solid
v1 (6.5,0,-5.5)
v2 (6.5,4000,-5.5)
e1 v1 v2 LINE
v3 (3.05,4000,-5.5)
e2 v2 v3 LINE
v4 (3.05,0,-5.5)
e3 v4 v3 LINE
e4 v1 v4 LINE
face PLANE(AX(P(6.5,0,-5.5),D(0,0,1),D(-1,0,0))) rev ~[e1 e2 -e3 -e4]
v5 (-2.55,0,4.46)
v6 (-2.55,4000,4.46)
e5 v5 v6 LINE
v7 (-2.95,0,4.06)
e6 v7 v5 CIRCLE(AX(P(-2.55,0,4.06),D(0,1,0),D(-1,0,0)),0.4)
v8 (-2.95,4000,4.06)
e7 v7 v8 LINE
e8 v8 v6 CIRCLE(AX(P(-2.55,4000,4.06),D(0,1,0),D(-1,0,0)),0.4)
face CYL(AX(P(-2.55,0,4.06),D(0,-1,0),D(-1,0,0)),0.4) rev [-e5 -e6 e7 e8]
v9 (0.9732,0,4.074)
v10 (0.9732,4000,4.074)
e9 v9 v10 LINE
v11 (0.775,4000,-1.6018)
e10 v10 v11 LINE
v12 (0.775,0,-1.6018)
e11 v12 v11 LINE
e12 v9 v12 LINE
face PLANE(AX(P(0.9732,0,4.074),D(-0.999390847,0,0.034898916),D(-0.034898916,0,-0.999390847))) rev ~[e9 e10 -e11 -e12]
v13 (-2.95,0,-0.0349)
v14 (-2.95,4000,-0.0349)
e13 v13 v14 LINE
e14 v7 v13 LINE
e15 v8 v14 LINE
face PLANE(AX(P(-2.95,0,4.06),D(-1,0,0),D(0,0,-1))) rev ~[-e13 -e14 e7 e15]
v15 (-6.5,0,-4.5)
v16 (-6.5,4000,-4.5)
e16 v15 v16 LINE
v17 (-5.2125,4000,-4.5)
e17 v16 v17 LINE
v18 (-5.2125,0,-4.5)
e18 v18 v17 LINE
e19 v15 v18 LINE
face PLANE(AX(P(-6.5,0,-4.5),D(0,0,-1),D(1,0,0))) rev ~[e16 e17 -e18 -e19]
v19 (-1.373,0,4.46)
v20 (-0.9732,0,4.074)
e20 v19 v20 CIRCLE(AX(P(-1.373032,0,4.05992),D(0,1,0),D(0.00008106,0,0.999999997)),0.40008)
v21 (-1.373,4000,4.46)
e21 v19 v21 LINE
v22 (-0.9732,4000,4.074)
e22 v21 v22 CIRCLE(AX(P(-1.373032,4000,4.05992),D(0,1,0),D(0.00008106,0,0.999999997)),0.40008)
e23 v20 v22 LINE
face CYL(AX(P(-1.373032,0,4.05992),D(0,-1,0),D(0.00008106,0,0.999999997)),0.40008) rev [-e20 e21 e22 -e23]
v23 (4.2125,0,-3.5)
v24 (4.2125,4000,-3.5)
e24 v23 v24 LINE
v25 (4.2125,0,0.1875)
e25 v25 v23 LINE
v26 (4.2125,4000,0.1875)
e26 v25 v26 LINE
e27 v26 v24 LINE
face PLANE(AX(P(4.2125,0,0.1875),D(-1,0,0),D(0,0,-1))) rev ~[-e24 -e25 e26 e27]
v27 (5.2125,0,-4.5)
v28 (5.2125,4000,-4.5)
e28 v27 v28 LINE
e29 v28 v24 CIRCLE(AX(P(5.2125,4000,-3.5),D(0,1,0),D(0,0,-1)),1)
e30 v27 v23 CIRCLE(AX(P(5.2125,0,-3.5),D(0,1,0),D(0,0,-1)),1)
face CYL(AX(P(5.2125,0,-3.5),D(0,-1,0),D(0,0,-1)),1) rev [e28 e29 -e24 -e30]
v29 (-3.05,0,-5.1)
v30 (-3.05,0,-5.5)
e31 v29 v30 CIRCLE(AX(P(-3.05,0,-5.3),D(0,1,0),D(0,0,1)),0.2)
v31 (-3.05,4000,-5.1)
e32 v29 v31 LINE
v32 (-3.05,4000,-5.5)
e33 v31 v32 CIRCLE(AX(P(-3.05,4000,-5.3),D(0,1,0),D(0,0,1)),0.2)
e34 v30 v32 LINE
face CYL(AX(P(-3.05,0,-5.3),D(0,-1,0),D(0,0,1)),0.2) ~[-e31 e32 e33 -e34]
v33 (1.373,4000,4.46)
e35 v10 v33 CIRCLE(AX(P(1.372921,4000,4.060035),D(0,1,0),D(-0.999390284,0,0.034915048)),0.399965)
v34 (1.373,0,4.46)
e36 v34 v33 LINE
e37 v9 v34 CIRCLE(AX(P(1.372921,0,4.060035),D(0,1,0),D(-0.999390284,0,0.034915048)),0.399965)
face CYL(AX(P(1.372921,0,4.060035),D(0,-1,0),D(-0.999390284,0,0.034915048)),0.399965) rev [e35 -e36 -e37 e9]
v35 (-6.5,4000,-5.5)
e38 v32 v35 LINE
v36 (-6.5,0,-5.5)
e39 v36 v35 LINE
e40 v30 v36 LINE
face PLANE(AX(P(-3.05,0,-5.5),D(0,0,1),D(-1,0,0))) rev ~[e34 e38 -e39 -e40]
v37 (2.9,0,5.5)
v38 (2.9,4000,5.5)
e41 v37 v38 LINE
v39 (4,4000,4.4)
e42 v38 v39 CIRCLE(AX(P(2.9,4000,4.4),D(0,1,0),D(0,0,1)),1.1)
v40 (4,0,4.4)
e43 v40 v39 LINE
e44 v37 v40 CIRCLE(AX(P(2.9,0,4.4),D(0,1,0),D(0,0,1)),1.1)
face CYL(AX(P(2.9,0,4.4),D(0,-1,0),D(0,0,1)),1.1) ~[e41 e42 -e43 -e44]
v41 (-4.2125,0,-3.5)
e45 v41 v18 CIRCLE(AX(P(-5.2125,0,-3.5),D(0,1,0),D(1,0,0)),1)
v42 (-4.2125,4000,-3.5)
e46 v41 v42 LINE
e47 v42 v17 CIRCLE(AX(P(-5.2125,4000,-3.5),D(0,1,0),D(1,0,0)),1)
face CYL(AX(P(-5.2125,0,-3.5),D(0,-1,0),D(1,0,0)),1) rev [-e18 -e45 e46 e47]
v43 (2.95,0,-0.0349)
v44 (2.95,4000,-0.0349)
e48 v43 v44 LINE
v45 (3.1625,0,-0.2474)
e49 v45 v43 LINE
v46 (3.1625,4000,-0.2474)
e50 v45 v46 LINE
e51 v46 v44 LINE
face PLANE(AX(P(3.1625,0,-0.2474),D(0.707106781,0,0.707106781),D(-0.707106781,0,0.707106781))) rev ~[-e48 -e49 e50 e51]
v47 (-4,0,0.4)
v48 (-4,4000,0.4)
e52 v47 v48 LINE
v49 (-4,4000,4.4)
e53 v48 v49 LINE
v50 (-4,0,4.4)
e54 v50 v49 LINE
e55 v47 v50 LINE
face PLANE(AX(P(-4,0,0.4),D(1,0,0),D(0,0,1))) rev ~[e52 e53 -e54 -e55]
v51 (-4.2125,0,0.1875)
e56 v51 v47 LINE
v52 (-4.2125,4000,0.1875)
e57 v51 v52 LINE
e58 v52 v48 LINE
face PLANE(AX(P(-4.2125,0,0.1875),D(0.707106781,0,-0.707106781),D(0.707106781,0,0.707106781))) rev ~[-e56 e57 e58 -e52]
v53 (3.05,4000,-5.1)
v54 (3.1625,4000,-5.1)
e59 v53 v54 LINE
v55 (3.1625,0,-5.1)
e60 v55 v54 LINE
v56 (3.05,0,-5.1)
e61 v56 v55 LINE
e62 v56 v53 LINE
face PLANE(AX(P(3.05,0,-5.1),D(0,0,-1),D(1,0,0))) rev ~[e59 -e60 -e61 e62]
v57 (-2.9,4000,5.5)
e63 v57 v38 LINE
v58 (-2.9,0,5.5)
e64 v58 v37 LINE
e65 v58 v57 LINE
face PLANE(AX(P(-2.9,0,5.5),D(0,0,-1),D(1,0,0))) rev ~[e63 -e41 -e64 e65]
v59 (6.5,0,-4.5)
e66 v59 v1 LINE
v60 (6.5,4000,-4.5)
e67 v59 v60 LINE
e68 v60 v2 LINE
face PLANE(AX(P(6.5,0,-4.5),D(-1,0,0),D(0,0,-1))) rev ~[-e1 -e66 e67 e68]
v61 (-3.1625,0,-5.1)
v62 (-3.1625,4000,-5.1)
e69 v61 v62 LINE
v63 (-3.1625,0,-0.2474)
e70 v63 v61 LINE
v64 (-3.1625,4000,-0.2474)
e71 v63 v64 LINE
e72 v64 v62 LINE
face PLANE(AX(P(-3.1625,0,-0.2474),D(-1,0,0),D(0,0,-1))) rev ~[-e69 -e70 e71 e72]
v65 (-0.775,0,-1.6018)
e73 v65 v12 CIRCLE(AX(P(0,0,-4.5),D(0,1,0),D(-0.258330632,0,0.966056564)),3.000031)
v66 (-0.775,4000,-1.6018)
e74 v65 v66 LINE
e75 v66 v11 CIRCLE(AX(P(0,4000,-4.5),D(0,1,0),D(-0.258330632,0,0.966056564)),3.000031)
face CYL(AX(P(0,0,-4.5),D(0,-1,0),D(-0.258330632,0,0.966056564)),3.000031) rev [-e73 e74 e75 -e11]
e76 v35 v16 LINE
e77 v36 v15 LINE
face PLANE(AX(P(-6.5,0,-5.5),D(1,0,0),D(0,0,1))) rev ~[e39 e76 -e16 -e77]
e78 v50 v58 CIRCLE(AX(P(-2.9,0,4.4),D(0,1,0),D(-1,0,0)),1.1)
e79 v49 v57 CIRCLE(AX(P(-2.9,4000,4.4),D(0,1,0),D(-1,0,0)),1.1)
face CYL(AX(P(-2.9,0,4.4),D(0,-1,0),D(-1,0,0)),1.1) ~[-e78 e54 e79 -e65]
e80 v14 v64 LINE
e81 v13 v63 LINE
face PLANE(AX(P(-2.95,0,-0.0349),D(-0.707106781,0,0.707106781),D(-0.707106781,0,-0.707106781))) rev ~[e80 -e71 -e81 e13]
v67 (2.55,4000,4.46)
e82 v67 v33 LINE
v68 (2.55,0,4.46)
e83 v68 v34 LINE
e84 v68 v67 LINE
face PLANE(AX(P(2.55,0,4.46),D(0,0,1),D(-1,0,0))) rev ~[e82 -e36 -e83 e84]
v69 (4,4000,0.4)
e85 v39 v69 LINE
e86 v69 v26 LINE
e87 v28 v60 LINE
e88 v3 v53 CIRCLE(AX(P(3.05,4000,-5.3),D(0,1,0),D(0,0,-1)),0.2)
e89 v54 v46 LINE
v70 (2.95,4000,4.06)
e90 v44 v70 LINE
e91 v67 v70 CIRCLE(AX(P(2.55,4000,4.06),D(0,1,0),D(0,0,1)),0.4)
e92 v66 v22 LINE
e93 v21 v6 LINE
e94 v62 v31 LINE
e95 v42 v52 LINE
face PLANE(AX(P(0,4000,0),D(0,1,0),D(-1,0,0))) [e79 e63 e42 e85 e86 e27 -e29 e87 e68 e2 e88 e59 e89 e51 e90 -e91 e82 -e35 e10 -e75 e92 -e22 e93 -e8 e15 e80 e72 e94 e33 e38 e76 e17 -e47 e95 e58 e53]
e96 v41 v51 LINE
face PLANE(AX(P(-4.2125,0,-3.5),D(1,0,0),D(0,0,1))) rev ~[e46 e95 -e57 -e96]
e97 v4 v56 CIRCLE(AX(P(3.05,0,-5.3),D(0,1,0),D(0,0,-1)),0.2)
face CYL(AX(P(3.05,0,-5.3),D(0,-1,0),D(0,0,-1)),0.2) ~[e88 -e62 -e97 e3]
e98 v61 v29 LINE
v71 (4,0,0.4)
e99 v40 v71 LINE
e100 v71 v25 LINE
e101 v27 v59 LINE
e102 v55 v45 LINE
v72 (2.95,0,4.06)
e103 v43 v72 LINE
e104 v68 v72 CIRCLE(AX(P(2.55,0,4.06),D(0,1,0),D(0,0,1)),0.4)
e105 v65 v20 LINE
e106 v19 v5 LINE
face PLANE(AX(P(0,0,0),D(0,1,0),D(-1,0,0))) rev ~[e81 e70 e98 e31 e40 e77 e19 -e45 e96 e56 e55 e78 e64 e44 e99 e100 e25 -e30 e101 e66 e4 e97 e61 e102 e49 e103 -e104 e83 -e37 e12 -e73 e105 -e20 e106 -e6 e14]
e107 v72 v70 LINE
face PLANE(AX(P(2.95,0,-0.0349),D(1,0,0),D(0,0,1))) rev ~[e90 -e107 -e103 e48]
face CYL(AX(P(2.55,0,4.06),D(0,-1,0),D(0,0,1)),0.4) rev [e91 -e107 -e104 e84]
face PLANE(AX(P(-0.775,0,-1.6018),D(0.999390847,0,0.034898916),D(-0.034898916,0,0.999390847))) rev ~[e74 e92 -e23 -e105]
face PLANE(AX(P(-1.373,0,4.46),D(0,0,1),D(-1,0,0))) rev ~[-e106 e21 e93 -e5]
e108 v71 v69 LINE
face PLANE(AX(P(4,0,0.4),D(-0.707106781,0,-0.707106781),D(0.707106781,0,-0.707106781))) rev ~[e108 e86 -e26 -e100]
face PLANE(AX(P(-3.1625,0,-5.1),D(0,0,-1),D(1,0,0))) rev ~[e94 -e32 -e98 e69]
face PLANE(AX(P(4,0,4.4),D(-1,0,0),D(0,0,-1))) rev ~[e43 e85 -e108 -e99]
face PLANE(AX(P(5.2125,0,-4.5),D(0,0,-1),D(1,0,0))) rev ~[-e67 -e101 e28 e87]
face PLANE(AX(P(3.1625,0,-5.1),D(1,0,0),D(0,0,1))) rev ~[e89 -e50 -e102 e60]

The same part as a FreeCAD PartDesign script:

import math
import FreeCAD as App
import Part
import Sketcher
Q = App.Units.Quantity

doc = App.newDocument("Part")
body = doc.addObject("PartDesign::Body", "Body")

# Sketch on XZ plane
sketch1 = body.newObject("Sketcher::SketchObject", "Sketch")
sketch1.AttachmentSupport = (doc.getObject("XZ_Plane"), [""])
sketch1.MapMode = "FlatFace"
sketch1.addGeometry([
    Part.LineSegment(App.Vector(6.5, -5.5, 0), App.Vector(3.05, -5.5, 0)),  # 0
    Part.ArcOfCircle(Part.Circle(App.Vector(3.05, -5.3, 0), App.Vector(0, 0, 1), 0.2), math.radians(90), math.radians(270)),  # 1
    Part.LineSegment(App.Vector(3.05, -5.1, 0), App.Vector(3.16, -5.1, 0)),  # 2
    Part.LineSegment(App.Vector(3.16, -5.1, 0), App.Vector(3.16, -0.25, 0)),  # 3
    Part.LineSegment(App.Vector(3.16, -0.25, 0), App.Vector(2.95, -0.03, 0)),  # 4
    Part.LineSegment(App.Vector(2.95, -0.03, 0), App.Vector(2.95, 4.06, 0)),  # 5
    Part.ArcOfCircle(Part.Circle(App.Vector(2.55, 4.06, 0), App.Vector(0, 0, 1), 0.4), math.radians(0), math.radians(90)),  # 6
    Part.LineSegment(App.Vector(2.55, 4.46, 0), App.Vector(1.37, 4.46, 0)),  # 7
    Part.ArcOfCircle(Part.Circle(App.Vector(1.37, 4.06, 0), App.Vector(0, 0, 1), 0.4), math.radians(90), math.radians(178)),  # 8
    Part.LineSegment(App.Vector(0.97, 4.07, 0), App.Vector(0.78, -1.6, 0)),  # 9
    Part.ArcOfCircle(Part.Circle(App.Vector(0, -4.5, 0), App.Vector(0, 0, 1), 3), math.radians(75), math.radians(105)),  # 10
    Part.LineSegment(App.Vector(-0.78, -1.6, 0), App.Vector(-0.97, 4.07, 0)),  # 11
    Part.ArcOfCircle(Part.Circle(App.Vector(-1.37, 4.06, 0), App.Vector(0, 0, 1), 0.4), math.radians(2), math.radians(90)),  # 12
    Part.LineSegment(App.Vector(-1.37, 4.46, 0), App.Vector(-2.55, 4.46, 0)),  # 13
    Part.ArcOfCircle(Part.Circle(App.Vector(-2.55, 4.06, 0), App.Vector(0, 0, 1), 0.4), math.radians(90), math.radians(180)),  # 14
    Part.LineSegment(App.Vector(-2.95, 4.06, 0), App.Vector(-2.95, -0.03, 0)),  # 15
    Part.LineSegment(App.Vector(-2.95, -0.03, 0), App.Vector(-3.16, -0.25, 0)),  # 16
    Part.LineSegment(App.Vector(-3.16, -0.25, 0), App.Vector(-3.16, -5.1, 0)),  # 17
    Part.LineSegment(App.Vector(-3.16, -5.1, 0), App.Vector(-3.05, -5.1, 0)),  # 18
    Part.ArcOfCircle(Part.Circle(App.Vector(-3.05, -5.3, 0), App.Vector(0, 0, 1), 0.2), math.radians(-90), math.radians(90)),  # 19
    Part.LineSegment(App.Vector(-3.05, -5.5, 0), App.Vector(-6.5, -5.5, 0)),  # 20
    Part.LineSegment(App.Vector(-6.5, -5.5, 0), App.Vector(-6.5, -4.5, 0)),  # 21
    Part.LineSegment(App.Vector(-6.5, -4.5, 0), App.Vector(-5.21, -4.5, 0)),  # 22
    Part.ArcOfCircle(Part.Circle(App.Vector(-5.21, -3.5, 0), App.Vector(0, 0, 1), 1), math.radians(-90), math.radians(0)),  # 23
    Part.LineSegment(App.Vector(-4.21, -3.5, 0), App.Vector(-4.21, 0.19, 0)),  # 24
    Part.LineSegment(App.Vector(-4.21, 0.19, 0), App.Vector(-4, 0.4, 0)),  # 25
    Part.LineSegment(App.Vector(-4, 0.4, 0), App.Vector(-4, 4.4, 0)),  # 26
    Part.ArcOfCircle(Part.Circle(App.Vector(-2.9, 4.4, 0), App.Vector(0, 0, 1), 1.1), math.radians(90), math.radians(180)),  # 27
    Part.LineSegment(App.Vector(-2.9, 5.5, 0), App.Vector(2.9, 5.5, 0)),  # 28
    Part.ArcOfCircle(Part.Circle(App.Vector(2.9, 4.4, 0), App.Vector(0, 0, 1), 1.1), math.radians(0), math.radians(90)),  # 29
    Part.LineSegment(App.Vector(4, 4.4, 0), App.Vector(4, 0.4, 0)),  # 30
    Part.LineSegment(App.Vector(4, 0.4, 0), App.Vector(4.21, 0.19, 0)),  # 31
    Part.LineSegment(App.Vector(4.21, 0.19, 0), App.Vector(4.21, -3.5, 0)),  # 32
    Part.ArcOfCircle(Part.Circle(App.Vector(5.21, -3.5, 0), App.Vector(0, 0, 1), 1), math.radians(180), math.radians(270)),  # 33
    Part.LineSegment(App.Vector(5.21, -4.5, 0), App.Vector(6.5, -4.5, 0)),  # 34
    Part.LineSegment(App.Vector(6.5, -4.5, 0), App.Vector(6.5, -5.5, 0)),  # 35
], False)
sketch1.addConstraint([
    Sketcher.Constraint("Tangent", 0, 2, 1, 2),
    Sketcher.Constraint("Tangent", 1, 1, 2, 1),
    Sketcher.Constraint("Coincident", 2, 2, 3, 1),
    Sketcher.Constraint("Coincident", 3, 2, 4, 1),
    Sketcher.Constraint("Coincident", 4, 2, 5, 1),
    Sketcher.Constraint("Tangent", 5, 2, 6, 1),
    Sketcher.Constraint("Tangent", 6, 2, 7, 1),
    Sketcher.Constraint("Tangent", 7, 2, 8, 1),
    Sketcher.Constraint("Tangent", 8, 2, 9, 1),
    Sketcher.Constraint("Coincident", 9, 2, 10, 1),
    Sketcher.Constraint("Coincident", 10, 2, 11, 1),
    Sketcher.Constraint("Tangent", 11, 2, 12, 1),
    Sketcher.Constraint("Tangent", 12, 2, 13, 1),
    Sketcher.Constraint("Tangent", 13, 2, 14, 1),
    Sketcher.Constraint("Tangent", 14, 2, 15, 1),
    Sketcher.Constraint("Coincident", 15, 2, 16, 1),
    Sketcher.Constraint("Coincident", 16, 2, 17, 1),
    Sketcher.Constraint("Coincident", 17, 2, 18, 1),
    Sketcher.Constraint("Tangent", 18, 2, 19, 2),
    Sketcher.Constraint("Tangent", 19, 1, 20, 1),
    Sketcher.Constraint("Coincident", 20, 2, 21, 1),
    Sketcher.Constraint("Coincident", 21, 2, 22, 1),
    Sketcher.Constraint("Tangent", 22, 2, 23, 1),
    Sketcher.Constraint("Tangent", 23, 2, 24, 1),
    Sketcher.Constraint("Coincident", 24, 2, 25, 1),
    Sketcher.Constraint("Coincident", 25, 2, 26, 1),
    Sketcher.Constraint("Tangent", 26, 2, 27, 2),
    Sketcher.Constraint("Tangent", 27, 1, 28, 1),
    Sketcher.Constraint("Tangent", 28, 2, 29, 2),
    Sketcher.Constraint("Tangent", 29, 1, 30, 1),
    Sketcher.Constraint("Coincident", 30, 2, 31, 1),
    Sketcher.Constraint("Coincident", 31, 2, 32, 1),
    Sketcher.Constraint("Tangent", 32, 2, 33, 1),
    Sketcher.Constraint("Tangent", 33, 2, 34, 1),
    Sketcher.Constraint("Coincident", 34, 2, 35, 1),
    Sketcher.Constraint("Coincident", 35, 2, 0, 1),
    Sketcher.Constraint("Horizontal", 0),
    Sketcher.Constraint("Horizontal", 2),
    Sketcher.Constraint("Vertical", 3),
    Sketcher.Constraint("Vertical", 5),
    Sketcher.Constraint("Horizontal", 7),
    Sketcher.Constraint("Horizontal", 13),
    Sketcher.Constraint("Vertical", 15),
    Sketcher.Constraint("Vertical", 17),
    Sketcher.Constraint("Horizontal", 18),
    Sketcher.Constraint("Horizontal", 20),
    Sketcher.Constraint("Vertical", 21),
    Sketcher.Constraint("Horizontal", 22),
    Sketcher.Constraint("Vertical", 24),
    Sketcher.Constraint("Vertical", 26),
    Sketcher.Constraint("Horizontal", 28),
    Sketcher.Constraint("Vertical", 30),
    Sketcher.Constraint("Vertical", 32),
    Sketcher.Constraint("Horizontal", 34),
    Sketcher.Constraint("Vertical", 35),
    Sketcher.Constraint("Equal", 6, 8),
    Sketcher.Constraint("Equal", 8, 12),
    Sketcher.Constraint("Equal", 12, 14),
    Sketcher.Constraint("Equal", 1, 19),
    Sketcher.Constraint("Equal", 27, 29),
    Sketcher.Constraint("Equal", 23, 33),
    Sketcher.Constraint("Symmetric", 8, 3, 12, 3, -2),
    Sketcher.Constraint("Symmetric", 1, 3, 19, 3, -2),
    Sketcher.Constraint("Symmetric", 23, 3, 33, 3, -2),
    Sketcher.Constraint("Symmetric", 9, 2, 10, 2, -2),
    Sketcher.Constraint("Symmetric", 4, 2, 15, 2, -2),
    Sketcher.Constraint("Symmetric", 3, 2, 16, 2, -2),
    Sketcher.Constraint("Symmetric", 25, 2, 30, 2, -2),
    Sketcher.Constraint("Perpendicular", 4, 16),
    Sketcher.Constraint("Parallel", 16, 25),
    Sketcher.Constraint("Perpendicular", 25, 31),
    Sketcher.Constraint("Horizontal", 10, 3, 21, 2),
    Sketcher.Constraint("Equal", 0, 20),
    Sketcher.Constraint("Equal", 16, 25),
    Sketcher.Constraint("Radius", 10, 3.0),
    Sketcher.Constraint("Radius", 23, 1.0),
    Sketcher.Constraint("Radius", 1, 0.2),
    Sketcher.Constraint("Radius", 6, 0.4),
    Sketcher.Constraint("Radius", 27, 1.1),
    Sketcher.Constraint("DistanceY", 21, 1, 21, 2, 1.0),
    Sketcher.Constraint("DistanceY", 26, 1, 26, 2, 4.0),
    Sketcher.Constraint("Angle", 9, Q("-92 deg")),
    Sketcher.Constraint("DistanceX", 28, 1, 28, 2, 5.8),
    Sketcher.Constraint("DistanceX", 0, 2, 0, 1, 3.45),
    Sketcher.Constraint("DistanceY", 1, 3, -1, 1, 5.3),
    Sketcher.Constraint("DistanceY", -1, 1, 27, 3, 4.4),
    Sketcher.Constraint("DistanceX", 20, 2, -1, 1, 6.5),
    Sketcher.Constraint("DistanceX", 6, 3, 1, 3, 0.5),
    Sketcher.Constraint("DistanceX", 7, 2, 7, 1, 1.177),
    Sketcher.Constraint("DistanceY", 5, 1, 5, 2, 4.095),
    Sketcher.Constraint("DistanceY", -1, 1, 6, 3, 4.06),
    Sketcher.Constraint("DistanceX", 2, 1, 2, 2, 0.1125),
])
pad1 = body.newObject("PartDesign::Pad", "Pad")
pad1.Profile = sketch1
pad1.Length = 4000
pad1.Reversed = True

doc.recompute()
